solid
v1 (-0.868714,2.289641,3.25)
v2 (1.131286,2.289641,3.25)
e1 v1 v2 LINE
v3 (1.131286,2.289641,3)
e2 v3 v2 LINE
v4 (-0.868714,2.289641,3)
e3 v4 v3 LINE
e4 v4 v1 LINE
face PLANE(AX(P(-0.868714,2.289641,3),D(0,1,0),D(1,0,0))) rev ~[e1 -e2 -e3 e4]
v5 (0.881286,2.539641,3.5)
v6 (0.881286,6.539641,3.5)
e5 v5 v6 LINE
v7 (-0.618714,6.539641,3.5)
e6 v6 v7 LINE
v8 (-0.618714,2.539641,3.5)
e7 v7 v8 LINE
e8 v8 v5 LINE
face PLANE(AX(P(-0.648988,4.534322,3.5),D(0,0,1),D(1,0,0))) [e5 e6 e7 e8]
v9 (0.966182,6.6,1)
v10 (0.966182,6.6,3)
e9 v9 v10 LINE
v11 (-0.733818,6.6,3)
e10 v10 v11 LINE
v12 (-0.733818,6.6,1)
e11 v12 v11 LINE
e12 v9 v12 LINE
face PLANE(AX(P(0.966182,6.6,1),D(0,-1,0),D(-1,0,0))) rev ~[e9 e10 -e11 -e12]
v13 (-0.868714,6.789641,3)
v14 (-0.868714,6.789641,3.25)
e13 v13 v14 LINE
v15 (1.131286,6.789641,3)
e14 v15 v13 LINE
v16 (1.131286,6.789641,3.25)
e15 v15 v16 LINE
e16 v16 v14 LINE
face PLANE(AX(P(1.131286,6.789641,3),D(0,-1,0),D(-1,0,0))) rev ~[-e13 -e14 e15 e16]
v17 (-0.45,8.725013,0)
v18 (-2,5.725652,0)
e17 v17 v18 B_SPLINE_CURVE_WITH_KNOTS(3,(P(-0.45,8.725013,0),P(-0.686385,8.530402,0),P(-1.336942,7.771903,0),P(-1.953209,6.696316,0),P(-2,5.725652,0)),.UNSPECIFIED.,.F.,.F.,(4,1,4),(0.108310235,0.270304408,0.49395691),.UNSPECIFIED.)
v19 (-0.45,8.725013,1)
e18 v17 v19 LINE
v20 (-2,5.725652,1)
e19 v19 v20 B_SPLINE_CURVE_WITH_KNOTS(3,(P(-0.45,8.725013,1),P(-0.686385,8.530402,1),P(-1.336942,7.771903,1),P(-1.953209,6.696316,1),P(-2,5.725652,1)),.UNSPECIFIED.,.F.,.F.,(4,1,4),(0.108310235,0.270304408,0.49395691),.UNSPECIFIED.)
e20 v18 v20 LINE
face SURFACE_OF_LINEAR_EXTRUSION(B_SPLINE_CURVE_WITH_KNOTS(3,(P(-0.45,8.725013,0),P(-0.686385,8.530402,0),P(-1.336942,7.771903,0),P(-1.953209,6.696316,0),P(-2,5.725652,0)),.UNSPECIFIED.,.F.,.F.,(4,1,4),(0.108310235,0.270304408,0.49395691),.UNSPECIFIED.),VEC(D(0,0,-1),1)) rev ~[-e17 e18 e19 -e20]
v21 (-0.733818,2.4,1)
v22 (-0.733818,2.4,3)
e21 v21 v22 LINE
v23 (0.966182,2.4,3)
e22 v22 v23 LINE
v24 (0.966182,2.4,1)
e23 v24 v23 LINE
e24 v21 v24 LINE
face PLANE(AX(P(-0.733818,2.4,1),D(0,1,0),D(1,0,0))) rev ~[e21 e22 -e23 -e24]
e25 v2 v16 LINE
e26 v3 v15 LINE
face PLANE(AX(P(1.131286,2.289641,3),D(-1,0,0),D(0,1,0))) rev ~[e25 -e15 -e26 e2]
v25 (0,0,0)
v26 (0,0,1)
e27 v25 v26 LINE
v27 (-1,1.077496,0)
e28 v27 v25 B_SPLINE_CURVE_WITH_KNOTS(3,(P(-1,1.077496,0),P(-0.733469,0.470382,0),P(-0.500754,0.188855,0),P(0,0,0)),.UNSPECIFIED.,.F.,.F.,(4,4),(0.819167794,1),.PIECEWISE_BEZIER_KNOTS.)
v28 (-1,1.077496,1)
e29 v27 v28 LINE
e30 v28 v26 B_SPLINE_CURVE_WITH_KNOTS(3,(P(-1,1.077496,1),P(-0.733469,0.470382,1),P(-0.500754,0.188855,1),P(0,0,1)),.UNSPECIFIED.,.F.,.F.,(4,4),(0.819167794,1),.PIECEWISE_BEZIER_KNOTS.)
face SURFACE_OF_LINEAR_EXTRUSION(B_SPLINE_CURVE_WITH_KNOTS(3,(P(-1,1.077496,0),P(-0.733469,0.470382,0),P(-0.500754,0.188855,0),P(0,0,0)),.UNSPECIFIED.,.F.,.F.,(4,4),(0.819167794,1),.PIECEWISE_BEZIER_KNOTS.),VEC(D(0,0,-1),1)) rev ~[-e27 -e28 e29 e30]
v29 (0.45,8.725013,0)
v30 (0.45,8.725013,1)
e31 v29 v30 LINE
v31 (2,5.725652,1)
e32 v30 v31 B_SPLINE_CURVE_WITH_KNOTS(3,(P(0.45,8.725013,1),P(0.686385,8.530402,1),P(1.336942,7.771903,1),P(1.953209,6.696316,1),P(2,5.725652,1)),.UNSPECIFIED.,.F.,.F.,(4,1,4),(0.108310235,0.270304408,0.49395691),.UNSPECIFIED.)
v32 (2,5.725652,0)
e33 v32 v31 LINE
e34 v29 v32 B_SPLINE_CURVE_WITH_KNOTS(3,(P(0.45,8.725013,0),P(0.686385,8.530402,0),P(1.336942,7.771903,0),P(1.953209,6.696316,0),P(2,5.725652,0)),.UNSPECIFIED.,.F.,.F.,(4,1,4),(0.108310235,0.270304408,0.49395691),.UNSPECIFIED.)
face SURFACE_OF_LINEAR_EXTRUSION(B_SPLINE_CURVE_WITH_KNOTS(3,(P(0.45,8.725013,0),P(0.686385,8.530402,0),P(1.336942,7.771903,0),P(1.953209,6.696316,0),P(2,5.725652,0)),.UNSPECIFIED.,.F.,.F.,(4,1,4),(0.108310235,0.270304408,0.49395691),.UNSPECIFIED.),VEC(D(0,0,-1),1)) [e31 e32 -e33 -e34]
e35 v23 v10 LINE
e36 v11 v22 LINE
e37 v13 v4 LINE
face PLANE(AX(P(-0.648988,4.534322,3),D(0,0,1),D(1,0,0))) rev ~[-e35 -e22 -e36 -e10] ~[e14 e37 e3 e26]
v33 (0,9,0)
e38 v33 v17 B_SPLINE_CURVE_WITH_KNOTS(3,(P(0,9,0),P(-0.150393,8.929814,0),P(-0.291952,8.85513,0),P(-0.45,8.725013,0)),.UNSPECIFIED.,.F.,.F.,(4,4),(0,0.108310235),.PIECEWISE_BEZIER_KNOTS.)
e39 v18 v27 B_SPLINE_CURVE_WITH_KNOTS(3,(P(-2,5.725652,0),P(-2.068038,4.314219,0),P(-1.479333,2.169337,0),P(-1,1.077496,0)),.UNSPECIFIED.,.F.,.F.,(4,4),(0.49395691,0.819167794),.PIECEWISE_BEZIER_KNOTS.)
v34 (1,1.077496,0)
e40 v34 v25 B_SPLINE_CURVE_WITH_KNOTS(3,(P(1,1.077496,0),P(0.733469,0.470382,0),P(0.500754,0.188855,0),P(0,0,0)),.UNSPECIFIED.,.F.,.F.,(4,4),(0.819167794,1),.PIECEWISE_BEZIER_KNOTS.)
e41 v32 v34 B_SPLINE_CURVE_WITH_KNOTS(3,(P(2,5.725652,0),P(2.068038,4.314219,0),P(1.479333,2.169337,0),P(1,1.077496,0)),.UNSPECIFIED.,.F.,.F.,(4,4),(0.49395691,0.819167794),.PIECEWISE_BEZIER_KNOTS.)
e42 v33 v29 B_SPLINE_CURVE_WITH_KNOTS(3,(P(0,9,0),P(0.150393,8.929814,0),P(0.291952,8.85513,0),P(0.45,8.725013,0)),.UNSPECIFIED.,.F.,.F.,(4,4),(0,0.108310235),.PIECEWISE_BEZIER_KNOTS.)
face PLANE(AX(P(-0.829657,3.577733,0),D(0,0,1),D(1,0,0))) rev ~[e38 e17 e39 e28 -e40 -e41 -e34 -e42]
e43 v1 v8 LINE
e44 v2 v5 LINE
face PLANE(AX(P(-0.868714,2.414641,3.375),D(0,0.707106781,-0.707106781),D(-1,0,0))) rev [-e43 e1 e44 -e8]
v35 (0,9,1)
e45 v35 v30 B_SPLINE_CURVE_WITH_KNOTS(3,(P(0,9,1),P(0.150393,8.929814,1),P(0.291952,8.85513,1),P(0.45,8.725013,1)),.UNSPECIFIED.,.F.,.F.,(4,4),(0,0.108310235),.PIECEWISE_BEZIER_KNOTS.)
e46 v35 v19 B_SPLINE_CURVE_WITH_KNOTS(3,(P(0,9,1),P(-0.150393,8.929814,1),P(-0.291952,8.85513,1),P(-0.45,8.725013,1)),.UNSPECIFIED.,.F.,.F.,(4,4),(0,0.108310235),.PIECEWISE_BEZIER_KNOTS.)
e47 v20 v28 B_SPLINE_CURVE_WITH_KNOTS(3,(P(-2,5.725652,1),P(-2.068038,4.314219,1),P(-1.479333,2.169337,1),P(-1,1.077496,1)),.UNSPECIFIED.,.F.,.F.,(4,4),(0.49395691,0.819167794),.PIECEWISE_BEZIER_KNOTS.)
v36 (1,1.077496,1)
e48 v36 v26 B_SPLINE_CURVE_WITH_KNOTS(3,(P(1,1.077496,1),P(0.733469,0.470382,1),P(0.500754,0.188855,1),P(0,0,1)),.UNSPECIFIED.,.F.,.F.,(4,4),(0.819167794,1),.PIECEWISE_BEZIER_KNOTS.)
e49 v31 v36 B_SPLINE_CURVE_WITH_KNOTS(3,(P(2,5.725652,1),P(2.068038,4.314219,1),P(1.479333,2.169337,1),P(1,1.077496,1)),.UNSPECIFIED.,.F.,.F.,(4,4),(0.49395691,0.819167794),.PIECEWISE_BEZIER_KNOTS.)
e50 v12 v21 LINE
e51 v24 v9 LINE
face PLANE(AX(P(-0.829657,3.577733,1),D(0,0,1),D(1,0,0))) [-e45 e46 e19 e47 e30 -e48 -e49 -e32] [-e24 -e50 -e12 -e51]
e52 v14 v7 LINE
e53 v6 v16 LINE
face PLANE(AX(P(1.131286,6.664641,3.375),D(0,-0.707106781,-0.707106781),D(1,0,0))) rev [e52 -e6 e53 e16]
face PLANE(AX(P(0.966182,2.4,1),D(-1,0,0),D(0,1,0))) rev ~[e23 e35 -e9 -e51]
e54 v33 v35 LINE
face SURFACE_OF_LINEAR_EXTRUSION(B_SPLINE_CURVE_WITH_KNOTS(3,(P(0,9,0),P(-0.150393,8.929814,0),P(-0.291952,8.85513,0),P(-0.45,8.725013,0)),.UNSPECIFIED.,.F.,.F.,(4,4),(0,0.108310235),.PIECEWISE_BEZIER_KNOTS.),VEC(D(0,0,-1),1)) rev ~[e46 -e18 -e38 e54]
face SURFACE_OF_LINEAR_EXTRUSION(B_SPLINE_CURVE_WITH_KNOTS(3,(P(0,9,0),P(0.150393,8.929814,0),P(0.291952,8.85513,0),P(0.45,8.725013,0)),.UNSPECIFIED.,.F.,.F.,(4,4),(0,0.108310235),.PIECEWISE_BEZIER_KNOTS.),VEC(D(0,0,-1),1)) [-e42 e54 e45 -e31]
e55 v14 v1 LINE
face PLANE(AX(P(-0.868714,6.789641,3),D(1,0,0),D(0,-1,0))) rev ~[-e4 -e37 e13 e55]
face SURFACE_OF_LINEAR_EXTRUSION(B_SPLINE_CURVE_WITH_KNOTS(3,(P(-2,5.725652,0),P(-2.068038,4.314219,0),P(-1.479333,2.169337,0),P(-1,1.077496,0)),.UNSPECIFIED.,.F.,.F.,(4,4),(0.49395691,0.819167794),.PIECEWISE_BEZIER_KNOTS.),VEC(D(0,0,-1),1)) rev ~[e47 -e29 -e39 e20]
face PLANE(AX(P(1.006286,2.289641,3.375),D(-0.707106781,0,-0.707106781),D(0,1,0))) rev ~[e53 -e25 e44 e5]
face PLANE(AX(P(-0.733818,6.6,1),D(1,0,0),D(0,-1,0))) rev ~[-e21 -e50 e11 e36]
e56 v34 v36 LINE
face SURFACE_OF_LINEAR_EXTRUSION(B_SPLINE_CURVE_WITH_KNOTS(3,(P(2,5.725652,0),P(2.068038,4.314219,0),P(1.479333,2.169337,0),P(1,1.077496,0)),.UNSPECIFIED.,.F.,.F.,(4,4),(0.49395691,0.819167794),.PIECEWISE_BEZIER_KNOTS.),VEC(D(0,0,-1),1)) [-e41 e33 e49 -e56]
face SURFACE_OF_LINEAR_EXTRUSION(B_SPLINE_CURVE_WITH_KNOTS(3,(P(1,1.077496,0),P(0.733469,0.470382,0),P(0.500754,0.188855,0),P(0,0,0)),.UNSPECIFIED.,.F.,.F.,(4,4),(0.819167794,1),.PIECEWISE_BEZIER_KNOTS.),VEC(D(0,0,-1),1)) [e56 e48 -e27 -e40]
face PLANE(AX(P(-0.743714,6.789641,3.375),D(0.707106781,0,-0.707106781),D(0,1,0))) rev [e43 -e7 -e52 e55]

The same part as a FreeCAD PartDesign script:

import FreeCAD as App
import Part
import Sketcher

V = App.Vector


def edges_at(feature, points):
    """Names of the edges that pass closest to the given points."""
    edges = feature.Shape.Edges
    near = lambda p: min(range(len(edges)), key=lambda i: edges[i].distToShape(Part.Vertex(*p))[0])
    return sorted({f"Edge{near(p) + 1}" for p in points})

doc = App.newDocument("Part")
body = doc.addObject("PartDesign::Body", "Body")

sketch1 = doc.addObject("Sketcher::SketchObject", "Sketch")
body.addObject(sketch1)
sketch1.AttachmentSupport = (doc.XY_Plane, [""])
sketch1.MapMode = "FlatFace"
sketch1.addGeometry([
    Part.BSplineCurve([V(-2, 5.725652, 0), V(-2.068038, 4.314219, 0), V(-1.479333, 2.169337, 0), V(-1, 1.077496, 0)], [4, 4], [0.49395691, 0.819167794], False, 3, [1, 1, 1, 1], False),
    Part.BSplineCurve([V(-1, 1.077496, 0), V(-0.733469, 0.470382, 0), V(-0.500754, 0.188855, 0), V(0, 0, 0)], [4, 4], [0.819167794, 1], False, 3, [1, 1, 1, 1], False),
    Part.BSplineCurve([V(1, 1.077496, 0), V(0.733469, 0.470382, 0), V(0.500754, 0.188855, 0), V(0, 0, 0)], [4, 4], [0.819167794, 1], False, 3, [1, 1, 1, 1], False),
    Part.BSplineCurve([V(2, 5.725652, 0), V(2.068038, 4.314219, 0), V(1.479333, 2.169337, 0), V(1, 1.077496, 0)], [4, 4], [0.49395691, 0.819167794], False, 3, [1, 1, 1, 1], False),
    Part.BSplineCurve([V(0.45, 8.725013, 0), V(0.686385, 8.530402, 0), V(1.336942, 7.771903, 0), V(1.953209, 6.696316, 0), V(2, 5.725652, 0)], [4, 1, 4], [0.108310235, 0.270304408, 0.49395691], False, 3, [1, 1, 1, 1, 1], False),
    Part.BSplineCurve([V(0, 9, 0), V(0.150393, 8.929814, 0), V(0.291952, 8.85513, 0), V(0.45, 8.725013, 0)], [4, 4], [0, 0.108310235], False, 3, [1, 1, 1, 1], False),
    Part.BSplineCurve([V(0, 9, 0), V(-0.150393, 8.929814, 0), V(-0.291952, 8.85513, 0), V(-0.45, 8.725013, 0)], [4, 4], [0, 0.108310235], False, 3, [1, 1, 1, 1], False),
    Part.BSplineCurve([V(-0.45, 8.725013, 0), V(-0.686385, 8.530402, 0), V(-1.336942, 7.771903, 0), V(-1.953209, 6.696316, 0), V(-2, 5.725652, 0)], [4, 1, 4], [0.108310235, 0.270304408, 0.49395691], False, 3, [1, 1, 1, 1, 1], False),
], False)
sketch1.addConstraint([
    Sketcher.Constraint("Block", 0),
    Sketcher.Constraint("Block", 1),
    Sketcher.Constraint("Block", 2),
    Sketcher.Constraint("Block", 3),
    Sketcher.Constraint("Block", 4),
    Sketcher.Constraint("Block", 5),
    Sketcher.Constraint("Block", 6),
    Sketcher.Constraint("Block", 7),
])
pad1 = doc.addObject("PartDesign::Pad", "Pad")
body.addObject(pad1)
pad1.Profile = sketch1
pad1.Length = 1

sketch2 = doc.addObject("Sketcher::SketchObject", "Sketch001")
body.addObject(sketch2)
sketch2.AttachmentSupport = (doc.XY_Plane, [""])
sketch2.MapMode = "FlatFace"
sketch2.AttachmentOffset = App.Placement(V(0, 0, 1), App.Rotation())
sketch2.addGeometry([
    Part.LineSegment(V(-0.7, 2.4, 0), V(1, 2.4, 0)),
    Part.LineSegment(V(1, 2.4, 0), V(1, 6.6, 0)),
    Part.LineSegment(V(1, 6.6, 0), V(-0.7, 6.6, 0)),
    Part.LineSegment(V(-0.7, 6.6, 0), V(-0.7, 2.4, 0)),
], False)
sketch2.addConstraint([
    Sketcher.Constraint("Coincident", 0, 2, 1, 1),
    Sketcher.Constraint("Coincident", 1, 2, 2, 1),
    Sketcher.Constraint("Coincident", 2, 2, 3, 1),
    Sketcher.Constraint("Coincident", 3, 2, 0, 1),
    Sketcher.Constraint("Horizontal", 0),
    Sketcher.Constraint("Vertical", 1),
    Sketcher.Constraint("Horizontal", 2),
    Sketcher.Constraint("Vertical", 3),
    Sketcher.Constraint("DistanceX", 0, 1, 0, 2, 1.7),
    Sketcher.Constraint("DistanceY", 1, 1, 1, 2, 4.2),
    Sketcher.Constraint("DistanceY", -1, 1, 0, 2, 2.4),
    Sketcher.Constraint("DistanceX", -1, 1, 0, 2, 0.966182),
])
pad2 = doc.addObject("PartDesign::Pad", "Pad001")
body.addObject(pad2)
pad2.Profile = sketch2
pad2.Length = 2

sketch3 = doc.addObject("Sketcher::SketchObject", "Sketch002")
body.addObject(sketch3)
sketch3.AttachmentSupport = (doc.XY_Plane, [""])
sketch3.MapMode = "FlatFace"
sketch3.AttachmentOffset = App.Placement(V(0, 0, 3), App.Rotation())
sketch3.addGeometry([
    Part.LineSegment(V(-0.9, 6.8, 0), V(-0.9, 2.3, 0)),
    Part.LineSegment(V(-0.9, 2.3, 0), V(1.1, 2.3, 0)),
    Part.LineSegment(V(1.1, 2.3, 0), V(1.1, 6.8, 0)),
    Part.LineSegment(V(1.1, 6.8, 0), V(-0.9, 6.8, 0)),
], False)
sketch3.addConstraint([
    Sketcher.Constraint("Coincident", 0, 2, 1, 1),
    Sketcher.Constraint("Coincident", 1, 2, 2, 1),
    Sketcher.Constraint("Coincident", 2, 2, 3, 1),
    Sketcher.Constraint("Coincident", 3, 2, 0, 1),
    Sketcher.Constraint("Vertical", 0),
    Sketcher.Constraint("Horizontal", 1),
    Sketcher.Constraint("Vertical", 2),
    Sketcher.Constraint("Horizontal", 3),
    Sketcher.Constraint("DistanceX", 1, 1, 1, 2, 2.0),
    Sketcher.Constraint("DistanceY", 0, 2, 0, 1, 4.5),
    Sketcher.Constraint("DistanceY", -1, 1, 0, 2, 2.289641),
    Sketcher.Constraint("DistanceX", 0, 2, -1, 1, 0.868714),
])
pad3 = doc.addObject("PartDesign::Pad", "Pad002")
body.addObject(pad3)
pad3.Profile = sketch3
pad3.Length = 0.5
doc.recompute()

chamfer = doc.addObject("PartDesign::Chamfer", "Chamfer")
body.addObject(chamfer)
chamfer.Base = (pad3, edges_at(pad3, [
    (0.131, 2.29, 3.5),
    (1.131, 4.54, 3.5),
    (0.131, 6.79, 3.5),
    (-0.869, 4.54, 3.5),
]))
chamfer.Size = 0.25

doc.recompute()
